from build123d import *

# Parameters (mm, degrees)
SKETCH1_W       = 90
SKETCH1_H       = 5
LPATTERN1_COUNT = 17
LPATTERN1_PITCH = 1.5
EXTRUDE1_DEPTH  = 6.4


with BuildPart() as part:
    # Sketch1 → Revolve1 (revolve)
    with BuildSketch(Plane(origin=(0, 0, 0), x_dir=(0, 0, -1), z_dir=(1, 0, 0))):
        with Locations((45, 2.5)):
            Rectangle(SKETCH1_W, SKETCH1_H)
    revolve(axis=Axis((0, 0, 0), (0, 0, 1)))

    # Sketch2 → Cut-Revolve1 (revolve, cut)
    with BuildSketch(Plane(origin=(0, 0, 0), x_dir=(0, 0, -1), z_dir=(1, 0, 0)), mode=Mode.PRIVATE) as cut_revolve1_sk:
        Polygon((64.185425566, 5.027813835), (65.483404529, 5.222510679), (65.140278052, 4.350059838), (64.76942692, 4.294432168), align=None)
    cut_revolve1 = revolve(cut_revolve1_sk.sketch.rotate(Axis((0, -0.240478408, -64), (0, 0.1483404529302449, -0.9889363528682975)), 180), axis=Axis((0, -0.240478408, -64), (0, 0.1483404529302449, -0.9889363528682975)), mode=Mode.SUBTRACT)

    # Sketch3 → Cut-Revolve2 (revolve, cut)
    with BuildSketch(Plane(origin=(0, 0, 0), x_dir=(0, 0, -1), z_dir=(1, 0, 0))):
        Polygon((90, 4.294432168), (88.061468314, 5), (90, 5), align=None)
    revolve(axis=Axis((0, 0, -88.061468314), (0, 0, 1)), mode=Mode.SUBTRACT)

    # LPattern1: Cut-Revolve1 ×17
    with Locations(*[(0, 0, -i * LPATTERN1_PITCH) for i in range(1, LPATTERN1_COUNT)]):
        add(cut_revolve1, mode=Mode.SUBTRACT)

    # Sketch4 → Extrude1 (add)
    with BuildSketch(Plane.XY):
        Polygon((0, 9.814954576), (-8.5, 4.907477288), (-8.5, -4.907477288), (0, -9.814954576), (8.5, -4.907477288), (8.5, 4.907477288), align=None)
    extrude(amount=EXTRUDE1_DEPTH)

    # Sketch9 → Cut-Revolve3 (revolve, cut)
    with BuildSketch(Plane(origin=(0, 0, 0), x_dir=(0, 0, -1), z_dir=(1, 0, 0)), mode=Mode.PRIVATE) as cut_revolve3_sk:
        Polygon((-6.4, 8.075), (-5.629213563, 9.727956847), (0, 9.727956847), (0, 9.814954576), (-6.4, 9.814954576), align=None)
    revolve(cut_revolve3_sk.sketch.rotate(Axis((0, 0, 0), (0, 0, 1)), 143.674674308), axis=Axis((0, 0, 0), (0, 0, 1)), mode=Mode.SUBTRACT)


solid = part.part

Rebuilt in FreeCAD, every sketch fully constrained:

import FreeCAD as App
import Part
import Sketcher
from FreeCAD import Vector
Q = App.Units.Quantity


def add_polygon(sketch, points):
    """Adds a closed chain of lines whose ends are joined by coincident constraints."""
    first, n = sketch.GeometryCount, len(points)
    for a, b in zip(points, points[1:] + points[:1]):
        sketch.addGeometry(Part.LineSegment(App.Vector(*a, 0), App.Vector(*b, 0)), False)
    for i in range(n):
        sketch.addConstraint(Sketcher.Constraint("Coincident", first + i, 2, first + (i + 1) % n, 1))

doc = App.newDocument("Part")
body = doc.addObject("PartDesign::Body", "Body")

sketch1 = doc.addObject("Sketcher::SketchObject", "Sketch")
body.addObject(sketch1)
sketch1.AttachmentSupport = (doc.YZ_Plane, [""])
sketch1.MapMode = "FlatFace"
add_polygon(sketch1, [(5, 0), (0, 0), (0, -90), (5, -90)])
sketch1.addConstraint(Sketcher.Constraint("Horizontal", 0))
sketch1.addConstraint(Sketcher.Constraint("Vertical", 1))
sketch1.addConstraint(Sketcher.Constraint("Horizontal", 2))
sketch1.addConstraint(Sketcher.Constraint("Vertical", 3))
sketch1.addConstraint(Sketcher.Constraint("Coincident", 0, 2, -1, 1))
sketch1.addConstraint(Sketcher.Constraint("DistanceX", 0, 2, 0, 1, Q("5 mm")))
sketch1.addConstraint(Sketcher.Constraint("DistanceY", 1, 2, 1, 1, Q("90 mm")))
revolution = doc.addObject("PartDesign::Revolution", "Revolution")
body.addObject(revolution)
revolution.Profile = sketch1
revolution.ReferenceAxis = (sketch1, ["V_Axis"])
revolution.Angle = 360

sketch2 = doc.addObject("Sketcher::SketchObject", "Sketch001")
body.addObject(sketch2)
sketch2.AttachmentSupport = (doc.YZ_Plane, [""])
sketch2.MapMode = "FlatFace"
add_polygon(sketch2, [(5.222511, -65.483405), (5.027814, -64.185426), (4.294432, -64.769427), (4.35006, -65.140278)])
sketch2.addGeometry(Part.LineSegment(Vector(-0.097348, -64.9542, 0), Vector(0.097348, -66.252179, 0)), True)
sketch2.addConstraint(Sketcher.Constraint("Parallel", 0, 2))
sketch2.addConstraint(Sketcher.Constraint("Parallel", 2, 4))
sketch2.addConstraint(Sketcher.Constraint("Equal", 1, 3))
sketch2.addConstraint(Sketcher.Constraint("Equal", 0, 4))
sketch2.addConstraint(Sketcher.Constraint("Distance", 2, Q("0.375 mm")))
sketch2.addConstraint(Sketcher.Constraint("DistanceY", 1, 2, 0, 2, Q("0.584001 mm")))
sketch2.addConstraint(Sketcher.Constraint("Distance", 0, Q("1.3125 mm")))
sketch2.addConstraint(Sketcher.Constraint("Distance", 1, Q("0.9375 mm")))
sketch2.addConstraint(Sketcher.Constraint("DistanceY", 4, 1, -1, 1, Q("64.9542 mm")))
sketch2.addConstraint(Sketcher.Constraint("DistanceY", 4, 2, 2, 2, Q("1.111901 mm")))
sketch2.addConstraint(Sketcher.Constraint("DistanceX", -1, 1, 2, 2, Q("4.35006 mm")))
sketch2.addConstraint(Sketcher.Constraint("DistanceX", 4, 1, -1, 1, Q("0.097348 mm")))
groove = doc.addObject("PartDesign::Groove", "Groove")
body.addObject(groove)
groove.Profile = sketch2
groove.ReferenceAxis = (sketch2, ["Axis0"])
groove.Angle = 360

sketch3 = doc.addObject("Sketcher::SketchObject", "Sketch002")
body.addObject(sketch3)
sketch3.AttachmentSupport = (doc.YZ_Plane, [""])
sketch3.MapMode = "FlatFace"
add_polygon(sketch3, [(5, -88.061468), (4.294432, -90), (5, -90)])
sketch3.addConstraint(Sketcher.Constraint("Horizontal", 1))
sketch3.addConstraint(Sketcher.Constraint("Vertical", 2))
sketch3.addConstraint(Sketcher.Constraint("Angle", 0, Q("-110 deg")))
sketch3.addConstraint(Sketcher.Constraint("DistanceY", 0, 2, -1, 1, Q("90 mm")))
sketch3.addConstraint(Sketcher.Constraint("DistanceX", -1, 1, 1, 2, Q("5 mm")))
sketch3.addConstraint(Sketcher.Constraint("DistanceY", 2, 1, 2, 2, Q("1.938532 mm")))
groove2 = doc.addObject("PartDesign::Groove", "Groove001")
body.addObject(groove2)
groove2.Profile = sketch3
groove2.ReferenceAxis = (sketch3, ["V_Axis"])
groove2.Angle = 360
doc.recompute()

linearpattern = doc.addObject("PartDesign::LinearPattern", "LinearPattern")
body.addObject(linearpattern)
linearpattern.Originals = [groove]
linearpattern.Direction = (doc.Z_Axis, [""])
linearpattern.Mode = "offset"
linearpattern.Offset = 1.5
linearpattern.Occurrences = 17
linearpattern.Reversed = True
body.Tip = linearpattern

sketch4 = doc.addObject("Sketcher::SketchObject", "Sketch003")
body.addObject(sketch4)
sketch4.AttachmentSupport = (doc.XY_Plane, [""])
sketch4.MapMode = "FlatFace"
add_polygon(sketch4, [(0, 9.814955), (-8.5, 4.907477), (-8.5, -4.907477), (0, -9.814955), (8.5, -4.907477), (8.5, 4.907477)])
sketch4.addConstraint(Sketcher.Constraint("Vertical", 1))
sketch4.addConstraint(Sketcher.Constraint("Vertical", 4))
sketch4.addConstraint(Sketcher.Constraint("Symmetric", 0, 2, 3, 2, -1, 1))
sketch4.addConstraint(Sketcher.Constraint("Symmetric", 2, 2, 5, 2, -1, 1))
sketch4.addConstraint(Sketcher.Constraint("PointOnObject", 2, 2, -2))
sketch4.addConstraint(Sketcher.Constraint("Parallel", 2, 5))
sketch4.addConstraint(Sketcher.Constraint("Horizontal", 1, 2, 3, 2))
sketch4.addConstraint(Sketcher.Constraint("Angle", 0, Q("-150 deg")))
sketch4.addConstraint(Sketcher.Constraint("DistanceX", 1, 2, 3, 2, Q("17 mm")))
sketch4.addConstraint(Sketcher.Constraint("DistanceY", 1, 2, 1, 1, Q("9.814955 mm")))
pad1 = doc.addObject("PartDesign::Pad", "Pad")
body.addObject(pad1)
pad1.Profile = sketch4
pad1.Length = 6.4

sketch5 = doc.addObject("Sketcher::SketchObject", "Sketch004")
body.addObject(sketch5)
sketch5.AttachmentSupport = (doc.YZ_Plane, [""])
sketch5.MapMode = "FlatFace"
add_polygon(sketch5, [(8.075, 6.4), (9.727957, 5.629214), (9.727957, 0), (9.814955, 0), (9.814955, 6.4)])
sketch5.addConstraint(Sketcher.Constraint("Vertical", 1))
sketch5.addConstraint(Sketcher.Constraint("Horizontal", 2))
sketch5.addConstraint(Sketcher.Constraint("Vertical", 3))
sketch5.addConstraint(Sketcher.Constraint("Horizontal", 4))
sketch5.addConstraint(Sketcher.Constraint("PointOnObject", 1, 2, -1))
sketch5.addConstraint(Sketcher.Constraint("Angle", 0, Q("-25 deg")))
sketch5.addConstraint(Sketcher.Constraint("DistanceY", 3, 1, 3, 2, Q("6.4 mm")))
sketch5.addConstraint(Sketcher.Constraint("DistanceX", -1, 1, 4, 2, Q("8.075 mm")))
sketch5.addConstraint(Sketcher.Constraint("DistanceX", 2, 1, 2, 2, Q("0.086998 mm")))
sketch5.addConstraint(Sketcher.Constraint("DistanceX", 4, 2, 4, 1, Q("1.739955 mm")))
groove3 = doc.addObject("PartDesign::Groove", "Groove002")
body.addObject(groove3)
groove3.Profile = sketch5
groove3.ReferenceAxis = (sketch5, ["V_Axis"])
groove3.Angle = 360

doc.recompute()
